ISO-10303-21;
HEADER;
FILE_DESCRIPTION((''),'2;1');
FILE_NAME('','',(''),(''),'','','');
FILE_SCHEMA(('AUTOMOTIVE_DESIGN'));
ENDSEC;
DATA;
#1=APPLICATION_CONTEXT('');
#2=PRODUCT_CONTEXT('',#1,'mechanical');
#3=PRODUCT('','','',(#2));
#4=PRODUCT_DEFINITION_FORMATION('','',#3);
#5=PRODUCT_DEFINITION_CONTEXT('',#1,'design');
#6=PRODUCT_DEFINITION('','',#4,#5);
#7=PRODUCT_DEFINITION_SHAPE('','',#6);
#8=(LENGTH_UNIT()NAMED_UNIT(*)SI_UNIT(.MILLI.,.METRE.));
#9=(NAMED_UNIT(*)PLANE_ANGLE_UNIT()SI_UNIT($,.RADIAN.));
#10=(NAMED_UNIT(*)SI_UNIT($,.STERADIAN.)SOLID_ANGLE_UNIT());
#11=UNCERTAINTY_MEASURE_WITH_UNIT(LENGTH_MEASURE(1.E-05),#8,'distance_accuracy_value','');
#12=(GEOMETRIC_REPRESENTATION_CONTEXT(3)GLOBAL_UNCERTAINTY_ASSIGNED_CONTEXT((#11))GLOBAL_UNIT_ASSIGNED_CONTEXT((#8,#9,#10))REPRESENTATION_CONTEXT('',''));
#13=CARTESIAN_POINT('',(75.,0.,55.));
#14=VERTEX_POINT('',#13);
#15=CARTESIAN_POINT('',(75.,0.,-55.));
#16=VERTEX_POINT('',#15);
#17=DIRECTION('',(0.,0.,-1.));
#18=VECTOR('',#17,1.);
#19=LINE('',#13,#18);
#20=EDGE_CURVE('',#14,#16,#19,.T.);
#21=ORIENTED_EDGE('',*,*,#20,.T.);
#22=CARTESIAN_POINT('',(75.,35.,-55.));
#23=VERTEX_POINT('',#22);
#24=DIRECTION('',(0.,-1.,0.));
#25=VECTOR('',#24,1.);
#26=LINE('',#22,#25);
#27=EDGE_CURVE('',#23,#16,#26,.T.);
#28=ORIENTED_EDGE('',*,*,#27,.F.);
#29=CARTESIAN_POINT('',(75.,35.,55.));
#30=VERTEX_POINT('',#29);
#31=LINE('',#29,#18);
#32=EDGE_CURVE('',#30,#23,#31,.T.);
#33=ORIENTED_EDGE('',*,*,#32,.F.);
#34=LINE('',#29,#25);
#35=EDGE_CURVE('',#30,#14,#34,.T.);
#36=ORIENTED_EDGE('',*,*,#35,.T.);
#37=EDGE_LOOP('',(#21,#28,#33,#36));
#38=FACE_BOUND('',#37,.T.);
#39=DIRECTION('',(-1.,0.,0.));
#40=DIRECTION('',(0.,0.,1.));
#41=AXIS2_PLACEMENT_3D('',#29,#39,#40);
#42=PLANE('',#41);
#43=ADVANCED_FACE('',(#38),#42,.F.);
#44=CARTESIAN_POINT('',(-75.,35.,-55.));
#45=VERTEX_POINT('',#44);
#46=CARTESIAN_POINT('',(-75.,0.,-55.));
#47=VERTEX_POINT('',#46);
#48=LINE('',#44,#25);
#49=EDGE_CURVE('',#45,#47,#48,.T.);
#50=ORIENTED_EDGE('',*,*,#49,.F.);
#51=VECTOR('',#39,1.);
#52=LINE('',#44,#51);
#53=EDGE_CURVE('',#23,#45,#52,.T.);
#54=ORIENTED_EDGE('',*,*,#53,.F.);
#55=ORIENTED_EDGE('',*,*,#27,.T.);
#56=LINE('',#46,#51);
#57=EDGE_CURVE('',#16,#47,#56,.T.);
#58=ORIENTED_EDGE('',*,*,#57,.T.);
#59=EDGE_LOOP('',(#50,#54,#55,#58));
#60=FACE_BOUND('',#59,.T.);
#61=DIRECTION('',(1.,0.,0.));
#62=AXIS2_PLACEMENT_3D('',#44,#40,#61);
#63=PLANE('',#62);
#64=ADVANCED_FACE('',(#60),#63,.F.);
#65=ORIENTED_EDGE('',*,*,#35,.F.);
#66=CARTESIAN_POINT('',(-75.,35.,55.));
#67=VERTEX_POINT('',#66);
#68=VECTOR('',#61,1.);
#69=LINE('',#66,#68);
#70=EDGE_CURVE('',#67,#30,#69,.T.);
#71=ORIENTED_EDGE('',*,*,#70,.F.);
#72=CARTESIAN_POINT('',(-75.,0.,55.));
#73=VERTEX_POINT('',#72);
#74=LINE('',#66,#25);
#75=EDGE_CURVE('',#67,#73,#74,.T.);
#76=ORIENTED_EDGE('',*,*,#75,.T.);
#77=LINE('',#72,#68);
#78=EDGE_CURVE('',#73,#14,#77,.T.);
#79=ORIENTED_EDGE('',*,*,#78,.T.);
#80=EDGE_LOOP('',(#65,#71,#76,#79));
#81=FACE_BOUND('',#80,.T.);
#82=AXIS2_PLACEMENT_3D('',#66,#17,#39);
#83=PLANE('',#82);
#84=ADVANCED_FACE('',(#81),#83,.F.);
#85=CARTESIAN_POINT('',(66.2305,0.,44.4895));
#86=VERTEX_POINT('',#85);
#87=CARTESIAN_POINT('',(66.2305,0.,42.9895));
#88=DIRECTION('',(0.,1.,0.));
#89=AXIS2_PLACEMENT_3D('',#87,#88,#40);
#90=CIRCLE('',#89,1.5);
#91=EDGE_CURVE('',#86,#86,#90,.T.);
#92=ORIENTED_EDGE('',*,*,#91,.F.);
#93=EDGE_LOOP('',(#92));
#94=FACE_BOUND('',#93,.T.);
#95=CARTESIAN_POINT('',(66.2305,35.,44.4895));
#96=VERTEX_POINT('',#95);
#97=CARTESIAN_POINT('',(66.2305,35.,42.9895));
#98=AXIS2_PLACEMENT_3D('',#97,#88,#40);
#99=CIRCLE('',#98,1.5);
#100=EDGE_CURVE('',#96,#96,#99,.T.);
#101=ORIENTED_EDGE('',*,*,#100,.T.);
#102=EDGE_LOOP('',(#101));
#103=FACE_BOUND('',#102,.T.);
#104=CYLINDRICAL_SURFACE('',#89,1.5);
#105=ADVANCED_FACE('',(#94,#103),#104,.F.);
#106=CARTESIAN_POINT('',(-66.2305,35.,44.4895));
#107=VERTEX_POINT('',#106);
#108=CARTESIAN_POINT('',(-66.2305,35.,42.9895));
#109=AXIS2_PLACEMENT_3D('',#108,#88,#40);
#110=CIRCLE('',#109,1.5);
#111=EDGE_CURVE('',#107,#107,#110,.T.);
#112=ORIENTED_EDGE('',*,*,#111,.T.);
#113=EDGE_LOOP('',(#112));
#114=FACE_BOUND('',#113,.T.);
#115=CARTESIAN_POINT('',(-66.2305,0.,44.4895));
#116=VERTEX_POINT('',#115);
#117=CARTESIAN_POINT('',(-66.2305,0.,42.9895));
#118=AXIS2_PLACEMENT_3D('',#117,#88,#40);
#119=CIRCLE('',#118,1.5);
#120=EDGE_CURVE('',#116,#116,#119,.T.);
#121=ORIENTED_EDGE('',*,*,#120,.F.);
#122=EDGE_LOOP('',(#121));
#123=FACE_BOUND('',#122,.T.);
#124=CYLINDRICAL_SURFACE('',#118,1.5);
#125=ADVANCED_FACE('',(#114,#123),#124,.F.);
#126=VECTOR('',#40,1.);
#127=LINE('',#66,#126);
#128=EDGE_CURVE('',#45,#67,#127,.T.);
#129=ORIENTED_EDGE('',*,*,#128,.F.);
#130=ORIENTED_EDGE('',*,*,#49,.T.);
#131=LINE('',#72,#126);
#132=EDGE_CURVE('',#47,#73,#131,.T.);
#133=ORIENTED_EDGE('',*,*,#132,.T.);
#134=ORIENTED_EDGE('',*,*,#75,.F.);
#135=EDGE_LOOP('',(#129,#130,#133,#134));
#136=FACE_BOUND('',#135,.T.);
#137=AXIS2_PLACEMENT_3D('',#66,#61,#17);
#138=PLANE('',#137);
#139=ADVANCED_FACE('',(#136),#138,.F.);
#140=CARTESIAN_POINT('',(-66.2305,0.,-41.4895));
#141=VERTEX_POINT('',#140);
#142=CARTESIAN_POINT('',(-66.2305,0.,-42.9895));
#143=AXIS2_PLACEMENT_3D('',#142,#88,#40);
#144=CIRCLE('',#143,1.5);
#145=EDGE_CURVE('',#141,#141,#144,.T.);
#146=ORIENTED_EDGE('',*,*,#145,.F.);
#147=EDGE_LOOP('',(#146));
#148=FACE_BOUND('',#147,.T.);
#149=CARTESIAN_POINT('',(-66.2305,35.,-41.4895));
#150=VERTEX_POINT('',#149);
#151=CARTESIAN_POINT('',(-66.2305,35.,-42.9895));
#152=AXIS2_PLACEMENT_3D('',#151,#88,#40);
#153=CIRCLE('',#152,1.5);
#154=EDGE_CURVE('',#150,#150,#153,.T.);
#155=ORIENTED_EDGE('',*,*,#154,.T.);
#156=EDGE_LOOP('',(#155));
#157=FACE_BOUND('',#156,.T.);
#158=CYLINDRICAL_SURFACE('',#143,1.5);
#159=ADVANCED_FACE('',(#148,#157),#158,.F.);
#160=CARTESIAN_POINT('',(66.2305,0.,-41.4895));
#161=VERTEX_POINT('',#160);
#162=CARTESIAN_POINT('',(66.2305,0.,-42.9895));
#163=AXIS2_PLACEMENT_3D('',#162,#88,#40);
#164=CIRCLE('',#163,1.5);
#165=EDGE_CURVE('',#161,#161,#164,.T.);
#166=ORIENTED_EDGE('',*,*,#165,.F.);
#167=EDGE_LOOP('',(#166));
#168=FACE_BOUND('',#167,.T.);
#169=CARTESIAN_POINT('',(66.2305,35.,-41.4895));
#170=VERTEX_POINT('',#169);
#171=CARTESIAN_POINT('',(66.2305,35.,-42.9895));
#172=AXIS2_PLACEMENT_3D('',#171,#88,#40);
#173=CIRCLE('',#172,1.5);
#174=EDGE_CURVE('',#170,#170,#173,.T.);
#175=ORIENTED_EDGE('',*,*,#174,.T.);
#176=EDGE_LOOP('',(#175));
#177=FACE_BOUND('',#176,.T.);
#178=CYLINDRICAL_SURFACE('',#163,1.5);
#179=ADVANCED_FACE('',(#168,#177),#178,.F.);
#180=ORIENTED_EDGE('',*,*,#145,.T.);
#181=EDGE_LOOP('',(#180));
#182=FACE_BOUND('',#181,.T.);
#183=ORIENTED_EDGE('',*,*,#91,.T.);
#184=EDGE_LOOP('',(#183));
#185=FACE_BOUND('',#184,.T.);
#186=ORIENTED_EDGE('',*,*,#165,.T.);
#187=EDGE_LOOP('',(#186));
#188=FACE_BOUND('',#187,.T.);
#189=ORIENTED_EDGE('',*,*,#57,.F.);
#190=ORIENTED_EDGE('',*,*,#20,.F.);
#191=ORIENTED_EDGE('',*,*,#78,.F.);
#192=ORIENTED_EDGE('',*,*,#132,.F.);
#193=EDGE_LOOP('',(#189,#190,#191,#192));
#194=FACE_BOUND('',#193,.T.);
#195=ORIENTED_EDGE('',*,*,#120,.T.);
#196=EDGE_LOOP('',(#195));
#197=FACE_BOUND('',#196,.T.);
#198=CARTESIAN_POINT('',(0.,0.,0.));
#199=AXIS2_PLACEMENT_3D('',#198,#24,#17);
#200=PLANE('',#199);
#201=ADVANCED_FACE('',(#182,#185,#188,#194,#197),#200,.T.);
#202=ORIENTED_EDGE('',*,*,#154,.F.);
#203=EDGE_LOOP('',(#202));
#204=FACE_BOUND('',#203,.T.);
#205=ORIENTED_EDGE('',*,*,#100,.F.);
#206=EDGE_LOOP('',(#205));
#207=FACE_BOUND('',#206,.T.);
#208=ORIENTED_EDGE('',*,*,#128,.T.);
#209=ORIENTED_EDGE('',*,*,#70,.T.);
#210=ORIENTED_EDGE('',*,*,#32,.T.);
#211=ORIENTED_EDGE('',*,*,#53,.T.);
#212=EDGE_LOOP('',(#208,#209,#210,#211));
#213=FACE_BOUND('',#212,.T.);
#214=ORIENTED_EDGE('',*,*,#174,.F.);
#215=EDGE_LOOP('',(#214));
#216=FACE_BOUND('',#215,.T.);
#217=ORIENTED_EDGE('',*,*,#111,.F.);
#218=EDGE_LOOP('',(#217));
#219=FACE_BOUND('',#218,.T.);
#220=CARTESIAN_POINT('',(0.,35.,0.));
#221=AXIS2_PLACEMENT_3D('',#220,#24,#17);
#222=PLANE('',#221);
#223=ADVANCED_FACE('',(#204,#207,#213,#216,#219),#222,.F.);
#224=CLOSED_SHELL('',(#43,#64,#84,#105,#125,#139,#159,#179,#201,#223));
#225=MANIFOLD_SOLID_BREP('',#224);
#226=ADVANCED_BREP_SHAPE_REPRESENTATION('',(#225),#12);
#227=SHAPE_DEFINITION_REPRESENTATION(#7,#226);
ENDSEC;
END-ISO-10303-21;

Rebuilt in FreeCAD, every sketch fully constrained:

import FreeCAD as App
import Part
import Sketcher

V = App.Vector
Q = App.Units.Quantity

doc = App.newDocument("Part")
body = doc.addObject("PartDesign::Body", "Body")

sketch1 = body.newObject("Sketcher::SketchObject", "Sketch")
sketch1.AttachmentSupport = (doc.getObject("XZ_Plane"), [""])
sketch1.MapMode = "FlatFace"
sketch1.addGeometry(Part.LineSegment(V(-75, -55, 0), V(-75, 55, 0)), False)
sketch1.addGeometry(Part.LineSegment(V(-75, 55, 0), V(75, 55, 0)), False)
sketch1.addGeometry(Part.LineSegment(V(75, 55, 0), V(75, -55, 0)), False)
sketch1.addGeometry(Part.LineSegment(V(75, -55, 0), V(-75, -55, 0)), False)
sketch1.addConstraint(Sketcher.Constraint("Coincident", 0, 2, 1, 1))
sketch1.addConstraint(Sketcher.Constraint("Coincident", 1, 2, 2, 1))
sketch1.addConstraint(Sketcher.Constraint("Coincident", 2, 2, 3, 1))
sketch1.addConstraint(Sketcher.Constraint("Coincident", 3, 2, 0, 1))
sketch1.addConstraint(Sketcher.Constraint("Vertical", 0))
sketch1.addConstraint(Sketcher.Constraint("Horizontal", 1))
sketch1.addConstraint(Sketcher.Constraint("Vertical", 2))
sketch1.addConstraint(Sketcher.Constraint("Horizontal", 3))
sketch1.addConstraint(Sketcher.Constraint("Symmetric", 0, 2, 2, 2, -1, 1))
sketch1.addConstraint(Sketcher.Constraint("DistanceX", 1, 1, 1, 2, Q("150 mm")))
sketch1.addConstraint(Sketcher.Constraint("DistanceY", 0, 1, 0, 2, Q("110 mm")))
pad1 = body.newObject("PartDesign::Pad", "Pad")
pad1.Profile = sketch1
pad1.Length = 35
pad1.Reversed = True

sketch2 = body.newObject("Sketcher::SketchObject", "Sketch001")
sketch2.AttachmentSupport = (doc.getObject("XZ_Plane"), [""])
sketch2.MapMode = "FlatFace"
sketch2.AttachmentOffset = App.Placement(V(0, 0, -35), App.Rotation())
sketch2.addGeometry(Part.Circle(V(-66.2, -43, 0), V(0, 0, 1), 1.5), False)
sketch2.addGeometry(Part.Circle(V(-66.2, 43, 0), V(0, 0, 1), 1.5), False)
sketch2.addGeometry(Part.Circle(V(66.2, 43, 0), V(0, 0, 1), 1.5), False)
sketch2.addGeometry(Part.Circle(V(66.2, -43, 0), V(0, 0, 1), 1.5), False)
sketch2.addConstraint(Sketcher.Constraint("Equal", 0, 1))
sketch2.addConstraint(Sketcher.Constraint("Equal", 1, 2))
sketch2.addConstraint(Sketcher.Constraint("Equal", 2, 3))
sketch2.addConstraint(Sketcher.Constraint("Symmetric", 0, 3, 2, 3, -1, 1))
sketch2.addConstraint(Sketcher.Constraint("Symmetric", 1, 3, 3, 3, -1, 1))
sketch2.addConstraint(Sketcher.Constraint("Symmetric", 1, 3, 2, 3, -2))
sketch2.addConstraint(Sketcher.Constraint("Diameter", 0, Q("3 mm")))
sketch2.addConstraint(Sketcher.Constraint("DistanceY", 0, 3, 1, 3, Q("85.979 mm")))
sketch2.addConstraint(Sketcher.Constraint("DistanceX", 1, 3, 2, 3, Q("132.461 mm")))
pocket1 = body.newObject("PartDesign::Pocket", "Pocket")
pocket1.Profile = sketch2
pocket1.Type = "ThroughAll"
pocket1.Reversed = True

doc.recompute()
